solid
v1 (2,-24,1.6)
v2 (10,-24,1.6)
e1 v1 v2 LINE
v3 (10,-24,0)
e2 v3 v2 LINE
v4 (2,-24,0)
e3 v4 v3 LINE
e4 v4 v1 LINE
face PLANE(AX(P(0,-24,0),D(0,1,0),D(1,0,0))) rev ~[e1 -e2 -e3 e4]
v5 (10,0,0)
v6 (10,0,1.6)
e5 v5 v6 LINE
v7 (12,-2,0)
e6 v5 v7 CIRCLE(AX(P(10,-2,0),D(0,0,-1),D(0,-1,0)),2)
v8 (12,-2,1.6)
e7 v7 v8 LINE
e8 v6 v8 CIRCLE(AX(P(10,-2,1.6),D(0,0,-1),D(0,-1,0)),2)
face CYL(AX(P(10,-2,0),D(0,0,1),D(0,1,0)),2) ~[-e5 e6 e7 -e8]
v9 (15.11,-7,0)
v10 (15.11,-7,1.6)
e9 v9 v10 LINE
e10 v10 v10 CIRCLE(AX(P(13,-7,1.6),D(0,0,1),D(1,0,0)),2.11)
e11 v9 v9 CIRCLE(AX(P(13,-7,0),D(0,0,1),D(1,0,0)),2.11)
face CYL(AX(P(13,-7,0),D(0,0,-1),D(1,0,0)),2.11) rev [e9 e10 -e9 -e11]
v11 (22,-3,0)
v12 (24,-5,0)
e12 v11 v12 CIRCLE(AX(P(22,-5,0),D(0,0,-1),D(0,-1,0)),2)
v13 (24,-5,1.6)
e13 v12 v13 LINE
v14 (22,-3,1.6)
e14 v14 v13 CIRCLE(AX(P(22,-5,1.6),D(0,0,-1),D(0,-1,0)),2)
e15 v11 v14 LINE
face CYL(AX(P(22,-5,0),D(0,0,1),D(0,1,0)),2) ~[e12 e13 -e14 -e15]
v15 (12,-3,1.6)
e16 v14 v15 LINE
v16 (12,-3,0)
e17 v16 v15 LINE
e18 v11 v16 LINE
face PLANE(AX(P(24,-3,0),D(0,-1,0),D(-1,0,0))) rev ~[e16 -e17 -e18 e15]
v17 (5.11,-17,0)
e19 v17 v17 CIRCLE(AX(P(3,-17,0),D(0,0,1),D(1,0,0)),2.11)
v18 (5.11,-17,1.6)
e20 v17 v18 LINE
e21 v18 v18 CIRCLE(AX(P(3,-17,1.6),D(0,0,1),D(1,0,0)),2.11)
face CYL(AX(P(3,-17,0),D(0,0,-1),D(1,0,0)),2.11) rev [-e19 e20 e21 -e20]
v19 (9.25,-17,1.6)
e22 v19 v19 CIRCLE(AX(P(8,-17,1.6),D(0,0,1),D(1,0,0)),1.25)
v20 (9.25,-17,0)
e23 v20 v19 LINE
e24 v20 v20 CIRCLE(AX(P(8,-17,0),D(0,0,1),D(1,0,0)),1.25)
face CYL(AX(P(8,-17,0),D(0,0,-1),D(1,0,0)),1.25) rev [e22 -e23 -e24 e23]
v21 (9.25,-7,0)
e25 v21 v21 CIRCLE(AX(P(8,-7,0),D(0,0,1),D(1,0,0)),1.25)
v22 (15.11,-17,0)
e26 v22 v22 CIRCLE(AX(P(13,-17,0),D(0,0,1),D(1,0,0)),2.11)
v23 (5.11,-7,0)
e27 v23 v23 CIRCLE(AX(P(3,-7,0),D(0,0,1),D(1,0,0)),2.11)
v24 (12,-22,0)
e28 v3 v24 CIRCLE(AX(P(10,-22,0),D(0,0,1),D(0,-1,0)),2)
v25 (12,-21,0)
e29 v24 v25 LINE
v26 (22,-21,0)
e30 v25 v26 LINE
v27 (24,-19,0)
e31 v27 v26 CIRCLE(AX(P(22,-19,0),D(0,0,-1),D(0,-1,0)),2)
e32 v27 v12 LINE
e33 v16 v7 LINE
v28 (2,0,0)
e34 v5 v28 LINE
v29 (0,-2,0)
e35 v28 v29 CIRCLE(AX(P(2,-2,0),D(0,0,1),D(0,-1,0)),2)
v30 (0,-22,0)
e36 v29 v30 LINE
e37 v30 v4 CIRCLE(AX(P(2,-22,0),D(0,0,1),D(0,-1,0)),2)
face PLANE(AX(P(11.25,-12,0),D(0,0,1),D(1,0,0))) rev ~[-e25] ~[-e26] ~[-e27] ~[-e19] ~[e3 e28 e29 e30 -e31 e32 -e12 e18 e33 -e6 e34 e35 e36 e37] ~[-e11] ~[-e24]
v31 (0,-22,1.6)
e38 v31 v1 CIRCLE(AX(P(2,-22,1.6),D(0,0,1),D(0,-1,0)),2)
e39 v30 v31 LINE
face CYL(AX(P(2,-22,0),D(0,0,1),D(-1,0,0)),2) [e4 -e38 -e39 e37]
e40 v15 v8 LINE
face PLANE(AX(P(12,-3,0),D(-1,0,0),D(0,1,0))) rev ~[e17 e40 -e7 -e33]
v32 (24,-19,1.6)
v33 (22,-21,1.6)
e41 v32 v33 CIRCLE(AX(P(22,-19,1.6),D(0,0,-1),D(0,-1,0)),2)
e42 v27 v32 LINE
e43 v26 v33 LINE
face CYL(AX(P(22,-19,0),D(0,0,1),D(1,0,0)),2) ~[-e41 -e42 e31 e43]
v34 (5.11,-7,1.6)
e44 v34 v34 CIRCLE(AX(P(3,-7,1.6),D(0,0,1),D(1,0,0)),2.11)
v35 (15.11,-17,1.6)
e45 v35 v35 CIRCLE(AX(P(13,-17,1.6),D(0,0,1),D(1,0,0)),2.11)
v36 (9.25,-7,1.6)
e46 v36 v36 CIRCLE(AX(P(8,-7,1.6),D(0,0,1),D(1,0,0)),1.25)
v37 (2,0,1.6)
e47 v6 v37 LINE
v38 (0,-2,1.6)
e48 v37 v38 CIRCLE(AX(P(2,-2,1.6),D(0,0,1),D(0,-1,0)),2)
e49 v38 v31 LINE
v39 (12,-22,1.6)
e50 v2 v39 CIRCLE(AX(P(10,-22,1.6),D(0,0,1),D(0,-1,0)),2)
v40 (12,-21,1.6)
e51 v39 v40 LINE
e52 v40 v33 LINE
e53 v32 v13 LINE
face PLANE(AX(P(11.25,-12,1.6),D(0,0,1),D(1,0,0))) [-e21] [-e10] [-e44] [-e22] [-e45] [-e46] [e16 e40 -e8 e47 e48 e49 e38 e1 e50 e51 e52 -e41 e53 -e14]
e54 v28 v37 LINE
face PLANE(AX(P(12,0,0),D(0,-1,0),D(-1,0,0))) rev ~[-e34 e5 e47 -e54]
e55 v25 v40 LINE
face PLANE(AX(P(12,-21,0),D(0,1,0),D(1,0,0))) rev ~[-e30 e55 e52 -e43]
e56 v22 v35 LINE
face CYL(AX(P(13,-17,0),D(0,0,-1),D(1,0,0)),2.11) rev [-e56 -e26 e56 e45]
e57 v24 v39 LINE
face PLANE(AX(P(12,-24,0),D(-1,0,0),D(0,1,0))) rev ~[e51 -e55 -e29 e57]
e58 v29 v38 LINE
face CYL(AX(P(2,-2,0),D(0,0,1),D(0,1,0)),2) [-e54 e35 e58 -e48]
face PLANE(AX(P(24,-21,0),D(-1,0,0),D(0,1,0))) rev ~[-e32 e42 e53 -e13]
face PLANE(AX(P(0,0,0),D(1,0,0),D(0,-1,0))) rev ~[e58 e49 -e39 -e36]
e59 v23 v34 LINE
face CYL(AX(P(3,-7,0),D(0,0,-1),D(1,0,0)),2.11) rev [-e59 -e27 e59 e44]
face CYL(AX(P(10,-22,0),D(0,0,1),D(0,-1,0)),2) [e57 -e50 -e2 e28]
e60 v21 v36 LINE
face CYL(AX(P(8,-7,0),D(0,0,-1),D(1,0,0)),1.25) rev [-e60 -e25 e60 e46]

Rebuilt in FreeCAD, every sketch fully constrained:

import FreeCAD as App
import Part
import Sketcher
from FreeCAD import Vector


def edges_at(feature, points):
    """Names of the edges that pass closest to the given points."""
    edges = feature.Shape.Edges
    near = lambda p: min(range(len(edges)), key=lambda i: edges[i].distToShape(Part.Vertex(*p))[0])
    return sorted({f"Edge{near(p) + 1}" for p in points})


def add_polygon(sketch, points):
    """Adds a closed chain of lines whose ends are joined by coincident constraints."""
    first, n = sketch.GeometryCount, len(points)
    for a, b in zip(points, points[1:] + points[:1]):
        sketch.addGeometry(Part.LineSegment(App.Vector(*a, 0), App.Vector(*b, 0)), False)
    for i in range(n):
        sketch.addConstraint(Sketcher.Constraint("Coincident", first + i, 2, first + (i + 1) % n, 1))

doc = App.newDocument("Part")
body = doc.addObject("PartDesign::Body", "Body")

# Sketch on XY plane
sketch1 = body.newObject("Sketcher::SketchObject", "Sketch")
sketch1.AttachmentSupport = (doc.getObject("XY_Plane"), [""])
sketch1.MapMode = "FlatFace"
add_polygon(sketch1, [(12, 0), (0, 0), (0, -24), (12, -24), (12, -21), (24, -21), (24, -3), (12, -3)])  # lines 0-7
sketch1.addGeometry(Part.Circle(Vector(3, -17, 0), Vector(0, 0, 1), 2.1), False)  # 8
sketch1.addGeometry(Part.Circle(Vector(8, -17, 0), Vector(0, 0, 1), 1.2), False)  # 9
sketch1.addGeometry(Part.Circle(Vector(13, -17, 0), Vector(0, 0, 1), 2.1), False)  # 10
sketch1.addGeometry(Part.Circle(Vector(3, -7, 0), Vector(0, 0, 1), 2.1), False)  # 11
sketch1.addGeometry(Part.Circle(Vector(8, -7, 0), Vector(0, 0, 1), 1.2), False)  # 12
sketch1.addGeometry(Part.Circle(Vector(13, -7, 0), Vector(0, 0, 1), 2.1), False)  # 13
sketch1.addConstraint([
    Sketcher.Constraint("Horizontal", 0),
    Sketcher.Constraint("Vertical", 1),
    Sketcher.Constraint("Horizontal", 2),
    Sketcher.Constraint("Vertical", 3),
    Sketcher.Constraint("Horizontal", 4),
    Sketcher.Constraint("Vertical", 5),
    Sketcher.Constraint("Horizontal", 6),
    Sketcher.Constraint("Vertical", 7),
    Sketcher.Constraint("Coincident", 0, 2, -1, 1),
    Sketcher.Constraint("Equal", 8, 10),
    Sketcher.Constraint("Equal", 10, 11),
    Sketcher.Constraint("Equal", 9, 12),
    Sketcher.Constraint("Equal", 11, 13),
    Sketcher.Constraint("Horizontal", 8, 3, 9, 3),
    Sketcher.Constraint("Horizontal", 9, 3, 10, 3),
    Sketcher.Constraint("Horizontal", 11, 3, 12, 3),
    Sketcher.Constraint("Horizontal", 12, 3, 13, 3),
    Sketcher.Constraint("Vertical", 8, 3, 11, 3),
    Sketcher.Constraint("Vertical", 9, 3, 12, 3),
    Sketcher.Constraint("Vertical", 10, 3, 13, 3),
    Sketcher.Constraint("Vertical", 3, 2, 6, 2),
    Sketcher.Constraint("Equal", 2, 4),
    Sketcher.Constraint("Equal", 3, 7),
    Sketcher.Constraint("Diameter", 9, 2.5),
    Sketcher.Constraint("Diameter", 8, 4.22),
    Sketcher.Constraint("DistanceX", 0, 2, 0, 1, 12.0),
    Sketcher.Constraint("DistanceY", 1, 2, 1, 1, 24.0),
    Sketcher.Constraint("DistanceY", 3, 1, 3, 2, 3.0),
    Sketcher.Constraint("DistanceX", -1, 1, 8, 3, 3.0),
    Sketcher.Constraint("DistanceY", 8, 3, -1, 1, 17.0),
    Sketcher.Constraint("DistanceX", -1, 1, 9, 3, 8.0),
    Sketcher.Constraint("DistanceX", -1, 1, 10, 3, 13.0),
    Sketcher.Constraint("DistanceY", 11, 3, -1, 1, 7.0),
])
pad1 = body.newObject("PartDesign::Pad", "Pad")
pad1.Profile = sketch1
pad1.Length = 1.6
doc.recompute()

fillet = body.newObject("PartDesign::Fillet", "Fillet")
fillet.Base = (pad1, edges_at(pad1, [
    (12, -24, 0.8),
    (0, -24, 0.8),
    (0, 0, 0.8),
    (12, 0, 0.8),
    (24, -3, 0.8),
    (24, -21, 0.8),
]))
fillet.Radius = 2

doc.recompute()
